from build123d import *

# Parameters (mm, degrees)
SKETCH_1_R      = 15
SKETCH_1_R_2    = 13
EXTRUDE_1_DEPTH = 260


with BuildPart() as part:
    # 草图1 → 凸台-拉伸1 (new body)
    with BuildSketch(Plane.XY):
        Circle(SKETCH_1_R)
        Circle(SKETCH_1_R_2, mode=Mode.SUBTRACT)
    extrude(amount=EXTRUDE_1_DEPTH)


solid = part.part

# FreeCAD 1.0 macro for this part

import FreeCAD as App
import Part
import Sketcher

V = App.Vector

doc = App.newDocument("Part")
params = doc.addObject("Spreadsheet::Sheet", "Params")
for row, (alias, value) in enumerate([
    ("sketch1_diameter", "30 mm"),
    ("sketch1_diameter2", "26 mm"),
    ("pad1_length", "260 mm"),
], start=1):
    params.set(f"A{row}", alias)
    params.set(f"B{row}", "=" + value)
    params.setAlias(f"B{row}", alias)

body = doc.addObject("PartDesign::Body", "Body")

# Sketch on XY plane
sketch1 = body.newObject("Sketcher::SketchObject", "Sketch")
sketch1.AttachmentSupport = (doc.getObject("XY_Plane"), [""])
sketch1.MapMode = "FlatFace"
sketch1.addGeometry(Part.Circle(V(0, 0, 0), V(0, 0, 1), 15), False)
sketch1.addGeometry(Part.Circle(V(0, 0, 0), V(0, 0, 1), 13), False)
sketch1.addConstraint(Sketcher.Constraint("Coincident", 0, 3, -1, 1))
sketch1.addConstraint(Sketcher.Constraint("Coincident", 1, 3, -1, 1))
sketch1.addConstraint(Sketcher.Constraint("Diameter", 0, 30.0))
sketch1.addConstraint(Sketcher.Constraint("Diameter", 1, 26.0))
sketch1.setExpression("Constraints[2]", "Params.sketch1_diameter")
sketch1.setExpression("Constraints[3]", "Params.sketch1_diameter2")
pad1 = body.newObject("PartDesign::Pad", "Pad")
pad1.Profile = sketch1
pad1.setExpression("Length", "Params.pad1_length")

doc.recompute()
